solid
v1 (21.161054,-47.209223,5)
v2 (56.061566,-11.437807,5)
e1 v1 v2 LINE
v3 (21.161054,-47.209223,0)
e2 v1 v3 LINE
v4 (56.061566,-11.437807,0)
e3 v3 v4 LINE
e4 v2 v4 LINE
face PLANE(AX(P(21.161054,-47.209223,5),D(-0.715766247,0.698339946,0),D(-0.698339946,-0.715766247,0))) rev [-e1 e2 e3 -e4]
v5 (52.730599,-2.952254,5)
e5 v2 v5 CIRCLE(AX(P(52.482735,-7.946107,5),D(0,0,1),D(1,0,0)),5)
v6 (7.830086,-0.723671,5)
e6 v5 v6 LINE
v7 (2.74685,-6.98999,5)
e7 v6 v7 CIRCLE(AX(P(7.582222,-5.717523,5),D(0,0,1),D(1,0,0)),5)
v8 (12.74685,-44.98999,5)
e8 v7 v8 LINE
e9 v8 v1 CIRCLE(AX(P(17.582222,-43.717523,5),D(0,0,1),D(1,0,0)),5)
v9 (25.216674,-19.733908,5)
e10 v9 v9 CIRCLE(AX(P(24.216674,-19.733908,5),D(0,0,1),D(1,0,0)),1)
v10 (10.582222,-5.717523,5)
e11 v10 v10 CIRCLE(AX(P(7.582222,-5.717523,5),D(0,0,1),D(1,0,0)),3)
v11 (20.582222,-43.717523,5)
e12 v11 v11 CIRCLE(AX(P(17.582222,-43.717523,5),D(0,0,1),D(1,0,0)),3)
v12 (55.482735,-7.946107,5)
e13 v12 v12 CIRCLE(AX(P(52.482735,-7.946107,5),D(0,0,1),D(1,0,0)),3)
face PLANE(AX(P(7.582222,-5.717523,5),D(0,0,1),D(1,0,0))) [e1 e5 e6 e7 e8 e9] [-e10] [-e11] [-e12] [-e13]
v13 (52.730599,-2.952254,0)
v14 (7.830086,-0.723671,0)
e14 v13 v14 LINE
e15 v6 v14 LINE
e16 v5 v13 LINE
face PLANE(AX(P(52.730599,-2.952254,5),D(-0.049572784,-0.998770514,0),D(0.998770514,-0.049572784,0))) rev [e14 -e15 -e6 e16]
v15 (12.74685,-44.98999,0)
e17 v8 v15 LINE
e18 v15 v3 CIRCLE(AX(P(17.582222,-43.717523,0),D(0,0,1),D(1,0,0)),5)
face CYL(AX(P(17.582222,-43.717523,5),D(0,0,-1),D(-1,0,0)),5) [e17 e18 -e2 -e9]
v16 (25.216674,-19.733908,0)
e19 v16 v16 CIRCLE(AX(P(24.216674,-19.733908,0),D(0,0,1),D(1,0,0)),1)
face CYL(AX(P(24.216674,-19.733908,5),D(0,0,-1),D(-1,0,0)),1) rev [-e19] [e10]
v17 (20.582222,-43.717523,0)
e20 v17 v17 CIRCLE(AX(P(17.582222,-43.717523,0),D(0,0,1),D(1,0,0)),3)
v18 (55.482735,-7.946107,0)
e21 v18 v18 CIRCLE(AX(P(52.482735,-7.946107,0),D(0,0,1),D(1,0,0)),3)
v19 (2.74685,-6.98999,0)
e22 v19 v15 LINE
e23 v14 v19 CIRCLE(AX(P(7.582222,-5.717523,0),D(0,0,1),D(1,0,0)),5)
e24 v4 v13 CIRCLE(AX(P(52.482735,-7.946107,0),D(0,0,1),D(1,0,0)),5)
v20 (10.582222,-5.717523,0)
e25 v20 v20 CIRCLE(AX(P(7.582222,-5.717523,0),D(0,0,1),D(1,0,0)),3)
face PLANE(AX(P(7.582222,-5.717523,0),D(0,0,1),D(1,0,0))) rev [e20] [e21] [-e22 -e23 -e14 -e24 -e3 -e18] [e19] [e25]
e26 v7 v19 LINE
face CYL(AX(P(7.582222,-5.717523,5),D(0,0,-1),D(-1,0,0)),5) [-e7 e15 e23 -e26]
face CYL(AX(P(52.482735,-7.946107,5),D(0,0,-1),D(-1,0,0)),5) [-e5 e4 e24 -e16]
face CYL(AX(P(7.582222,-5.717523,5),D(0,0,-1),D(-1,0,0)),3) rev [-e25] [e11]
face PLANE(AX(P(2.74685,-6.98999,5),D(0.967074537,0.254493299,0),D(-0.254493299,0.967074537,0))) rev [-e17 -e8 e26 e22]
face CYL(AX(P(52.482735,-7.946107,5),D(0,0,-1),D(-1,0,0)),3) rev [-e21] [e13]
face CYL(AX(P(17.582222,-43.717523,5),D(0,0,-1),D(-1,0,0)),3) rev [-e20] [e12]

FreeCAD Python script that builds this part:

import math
import FreeCAD as App
import Part
import Sketcher
from FreeCAD import Vector
Q = App.Units.Quantity

doc = App.newDocument("Part")
body = doc.addObject("PartDesign::Body", "Body")

# Sketch on XY plane
sketch1 = body.newObject("Sketcher::SketchObject", "Sketch")
sketch1.AttachmentSupport = (doc.getObject("XY_Plane"), [""])
sketch1.MapMode = "FlatFace"
sketch1.addGeometry(Part.LineSegment(Vector(52.7, -3, 0), Vector(7.8, -0.7, 0)), False)
sketch1.addGeometry(Part.ArcOfCircle(Part.Circle(Vector(7.6, -5.7, 0), Vector(0, 0, 1), 5), math.radians(87), math.radians(195)), False)
sketch1.addGeometry(Part.LineSegment(Vector(2.7, -7, 0), Vector(12.7, -45, 0)), False)
sketch1.addGeometry(Part.ArcOfCircle(Part.Circle(Vector(17.6, -43.7, 0), Vector(0, 0, 1), 5), math.radians(-165), math.radians(-44)), False)
sketch1.addGeometry(Part.LineSegment(Vector(21.2, -47.2, 0), Vector(56.1, -11.4, 0)), False)
sketch1.addGeometry(Part.ArcOfCircle(Part.Circle(Vector(52.5, -7.9, 0), Vector(0, 0, 1), 5), math.radians(-44), math.radians(87)), False)
sketch1.addGeometry(Part.Circle(Vector(17.6, -43.7, 0), Vector(0, 0, 1), 3), False)
sketch1.addGeometry(Part.Circle(Vector(24.2, -19.7, 0), Vector(0, 0, 1), 1), False)
sketch1.addGeometry(Part.Circle(Vector(7.6, -5.7, 0), Vector(0, 0, 1), 3), False)
sketch1.addGeometry(Part.Circle(Vector(52.5, -7.9, 0), Vector(0, 0, 1), 3), False)
sketch1.addConstraint(Sketcher.Constraint("Tangent", 0, 2, 1, 1))
sketch1.addConstraint(Sketcher.Constraint("Tangent", 1, 2, 2, 1))
sketch1.addConstraint(Sketcher.Constraint("Tangent", 2, 2, 3, 1))
sketch1.addConstraint(Sketcher.Constraint("Tangent", 3, 2, 4, 1))
sketch1.addConstraint(Sketcher.Constraint("Tangent", 4, 2, 5, 1))
sketch1.addConstraint(Sketcher.Constraint("Tangent", 5, 2, 0, 1))
sketch1.addConstraint(Sketcher.Constraint("Coincident", 6, 3, 3, 3))
sketch1.addConstraint(Sketcher.Constraint("Coincident", 8, 3, 1, 3))
sketch1.addConstraint(Sketcher.Constraint("Coincident", 9, 3, 5, 3))
sketch1.addConstraint(Sketcher.Constraint("Equal", 1, 3))
sketch1.addConstraint(Sketcher.Constraint("Equal", 3, 5))
sketch1.addConstraint(Sketcher.Constraint("Equal", 6, 8))
sketch1.addConstraint(Sketcher.Constraint("Equal", 8, 9))
sketch1.addConstraint(Sketcher.Constraint("Diameter", 6, Q("6 mm")))
sketch1.addConstraint(Sketcher.Constraint("Diameter", 7, Q("2 mm")))
sketch1.addConstraint(Sketcher.Constraint("Radius", 1, Q("5 mm")))
sketch1.addConstraint(Sketcher.Constraint("DistanceX", 1, 3, 3, 3, Q("10 mm")))
sketch1.addConstraint(Sketcher.Constraint("DistanceY", 3, 3, 1, 3, Q("38 mm")))
sketch1.addConstraint(Sketcher.Constraint("DistanceX", -1, 1, 5, 2, Q("52.730599 mm")))
sketch1.addConstraint(Sketcher.Constraint("DistanceY", 7, 3, 5, 3, Q("11.787802 mm")))
sketch1.addConstraint(Sketcher.Constraint("DistanceY", 3, 2, 3, 3, Q("3.4917 mm")))
sketch1.addConstraint(Sketcher.Constraint("DistanceY", 7, 3, -1, 1, Q("19.733908 mm")))
sketch1.addConstraint(Sketcher.Constraint("DistanceY", 0, 2, -1, 1, Q("0.723671 mm")))
sketch1.addConstraint(Sketcher.Constraint("DistanceX", 1, 3, 7, 3, Q("16.634451 mm")))
pad1 = body.newObject("PartDesign::Pad", "Pad")
pad1.Profile = sketch1
pad1.Length = 5

doc.recompute()
